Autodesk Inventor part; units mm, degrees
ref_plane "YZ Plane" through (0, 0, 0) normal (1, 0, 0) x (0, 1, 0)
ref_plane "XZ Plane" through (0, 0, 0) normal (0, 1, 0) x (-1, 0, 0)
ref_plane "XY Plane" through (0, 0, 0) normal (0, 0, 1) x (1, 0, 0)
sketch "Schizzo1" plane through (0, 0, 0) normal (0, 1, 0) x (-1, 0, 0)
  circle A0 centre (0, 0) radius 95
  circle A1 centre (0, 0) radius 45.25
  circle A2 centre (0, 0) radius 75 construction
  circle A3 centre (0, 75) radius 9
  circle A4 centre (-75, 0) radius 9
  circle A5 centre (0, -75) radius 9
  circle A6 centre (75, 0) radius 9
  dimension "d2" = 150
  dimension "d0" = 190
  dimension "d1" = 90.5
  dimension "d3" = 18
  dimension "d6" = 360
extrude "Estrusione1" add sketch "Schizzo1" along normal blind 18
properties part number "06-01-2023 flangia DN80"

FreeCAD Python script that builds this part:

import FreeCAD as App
import Part
import Sketcher

V = App.Vector
Q = App.Units.Quantity

doc = App.newDocument("Part")
body = doc.addObject("PartDesign::Body", "Body")

sketch1 = body.newObject("Sketcher::SketchObject", "Sketch")
sketch1.AttachmentSupport = (doc.getObject("XZ_Plane"), [""])
sketch1.MapMode = "FlatFace"
sketch1.addGeometry(Part.Circle(V(0, 0, 0), V(0, 0, 1), 95), False)
sketch1.addGeometry(Part.Circle(V(0, -75, 0), V(0, 0, 1), 9), False)
sketch1.addGeometry(Part.Circle(V(75, 0, 0), V(0, 0, 1), 9), False)
sketch1.addGeometry(Part.Circle(V(0, 0, 0), V(0, 0, 1), 45.25), False)
sketch1.addGeometry(Part.Circle(V(-75, 0, 0), V(0, 0, 1), 9), False)
sketch1.addGeometry(Part.Circle(V(0, 75, 0), V(0, 0, 1), 9), False)
sketch1.addConstraint(Sketcher.Constraint("Coincident", 0, 3, -1, 1))
sketch1.addConstraint(Sketcher.Constraint("Coincident", 3, 3, -1, 1))
sketch1.addConstraint(Sketcher.Constraint("Equal", 1, 2))
sketch1.addConstraint(Sketcher.Constraint("Equal", 2, 4))
sketch1.addConstraint(Sketcher.Constraint("Equal", 4, 5))
sketch1.addConstraint(Sketcher.Constraint("Symmetric", 2, 3, 4, 3, -1, 1))
sketch1.addConstraint(Sketcher.Constraint("Symmetric", 1, 3, 5, 3, -1, 1))
sketch1.addConstraint(Sketcher.Constraint("PointOnObject", 1, 3, -2))
sketch1.addConstraint(Sketcher.Constraint("PointOnObject", 2, 3, -1))
sketch1.addConstraint(Sketcher.Constraint("Diameter", 0, Q("190 mm")))
sketch1.addConstraint(Sketcher.Constraint("Diameter", 1, Q("18 mm")))
sketch1.addConstraint(Sketcher.Constraint("Diameter", 3, Q("90.5 mm")))
sketch1.addConstraint(Sketcher.Constraint("DistanceX", 4, 3, 2, 3, Q("150 mm")))
sketch1.addConstraint(Sketcher.Constraint("DistanceY", 1, 3, 5, 3, Q("150 mm")))
pad1 = body.newObject("PartDesign::Pad", "Pad")
pad1.Profile = sketch1
pad1.Length = 18
pad1.Reversed = True

doc.recompute()
